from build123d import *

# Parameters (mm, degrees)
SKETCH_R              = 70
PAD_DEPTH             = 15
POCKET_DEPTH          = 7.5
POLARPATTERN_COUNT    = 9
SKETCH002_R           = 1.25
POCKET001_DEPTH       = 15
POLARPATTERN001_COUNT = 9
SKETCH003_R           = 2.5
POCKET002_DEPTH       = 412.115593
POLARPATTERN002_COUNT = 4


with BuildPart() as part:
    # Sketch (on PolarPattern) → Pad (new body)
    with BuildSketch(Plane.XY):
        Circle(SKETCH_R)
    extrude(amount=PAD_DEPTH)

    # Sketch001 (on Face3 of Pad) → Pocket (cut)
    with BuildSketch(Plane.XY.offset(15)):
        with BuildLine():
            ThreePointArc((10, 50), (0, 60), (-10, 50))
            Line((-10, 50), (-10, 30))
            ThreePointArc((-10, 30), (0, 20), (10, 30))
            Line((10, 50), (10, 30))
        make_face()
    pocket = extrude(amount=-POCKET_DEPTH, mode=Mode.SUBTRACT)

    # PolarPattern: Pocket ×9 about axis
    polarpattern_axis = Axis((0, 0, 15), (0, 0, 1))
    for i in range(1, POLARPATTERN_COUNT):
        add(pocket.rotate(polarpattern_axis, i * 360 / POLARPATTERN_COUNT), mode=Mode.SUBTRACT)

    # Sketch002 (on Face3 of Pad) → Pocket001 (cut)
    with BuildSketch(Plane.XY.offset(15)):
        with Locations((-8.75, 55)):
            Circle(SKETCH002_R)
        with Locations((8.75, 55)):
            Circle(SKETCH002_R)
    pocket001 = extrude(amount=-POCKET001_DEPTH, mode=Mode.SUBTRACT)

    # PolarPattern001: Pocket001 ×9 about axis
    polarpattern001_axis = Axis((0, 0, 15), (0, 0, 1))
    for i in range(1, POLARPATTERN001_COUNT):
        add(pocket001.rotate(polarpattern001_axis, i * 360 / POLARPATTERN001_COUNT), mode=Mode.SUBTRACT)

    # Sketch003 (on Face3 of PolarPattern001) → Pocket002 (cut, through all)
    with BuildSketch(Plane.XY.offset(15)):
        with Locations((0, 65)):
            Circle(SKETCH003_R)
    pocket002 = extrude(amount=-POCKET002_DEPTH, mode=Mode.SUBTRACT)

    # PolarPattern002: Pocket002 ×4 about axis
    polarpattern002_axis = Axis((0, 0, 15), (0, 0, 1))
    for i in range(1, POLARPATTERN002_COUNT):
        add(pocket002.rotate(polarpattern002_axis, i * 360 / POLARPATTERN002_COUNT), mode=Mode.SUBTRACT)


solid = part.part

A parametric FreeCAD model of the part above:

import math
import FreeCAD as App
import Part
import Sketcher
from FreeCAD import Vector
Q = App.Units.Quantity

doc = App.newDocument("Part")
body = doc.addObject("PartDesign::Body", "Body")

# Sketch on XY plane
sketch1 = body.newObject("Sketcher::SketchObject", "Sketch")
sketch1.AttachmentSupport = (doc.getObject("XY_Plane"), [""])
sketch1.MapMode = "FlatFace"
sketch1.addGeometry(Part.Circle(Vector(0, 0, 0), Vector(0, 0, 1), 70), False)
sketch1.addConstraint([
    Sketcher.Constraint("Coincident", 0, 3, -1, 1),
    Sketcher.Constraint("Diameter", 0, Q("140 mm")),
])
pad1 = body.newObject("PartDesign::Pad", "Pad")
pad1.Profile = sketch1
pad1.Length = 15

# Sketch on XY plane
sketch2 = body.newObject("Sketcher::SketchObject", "Sketch001")
sketch2.AttachmentSupport = (doc.getObject("XY_Plane"), [""])
sketch2.MapMode = "FlatFace"
sketch2.AttachmentOffset = App.Placement(Vector(0, 0, 15), App.Rotation())
sketch2.addGeometry([
    Part.ArcOfCircle(Part.Circle(Vector(0, 50, 0), Vector(0, 0, 1), 10), math.radians(0), math.radians(180)),
    Part.LineSegment(Vector(-10, 50, 0), Vector(-10, 30, 0)),
    Part.ArcOfCircle(Part.Circle(Vector(0, 30, 0), Vector(0, 0, 1), 10), math.radians(180), math.radians(360)),
    Part.LineSegment(Vector(10, 30, 0), Vector(10, 50, 0)),
], False)
sketch2.addConstraint([
    Sketcher.Constraint("Tangent", 0, 2, 1, 1),
    Sketcher.Constraint("Tangent", 1, 2, 2, 1),
    Sketcher.Constraint("Tangent", 2, 2, 3, 1),
    Sketcher.Constraint("Tangent", 3, 2, 0, 1),
    Sketcher.Constraint("Vertical", 1),
    Sketcher.Constraint("Vertical", 3),
    Sketcher.Constraint("PointOnObject", 0, 3, -2),
    Sketcher.Constraint("Radius", 0, Q("10 mm")),
    Sketcher.Constraint("DistanceY", 1, 2, 1, 1, Q("20 mm")),
    Sketcher.Constraint("DistanceY", -1, 1, 0, 3, Q("50 mm")),
])
pocket1 = body.newObject("PartDesign::Pocket", "Pocket")
pocket1.Profile = sketch2
pocket1.Length = 7.5
doc.recompute()

polarpattern = body.newObject("PartDesign::PolarPattern", "PolarPattern")
polarpattern.Originals = [pocket1]
polarpattern.Axis = (doc.getObject("Z_Axis"), [""])
polarpattern.Angle = 360
polarpattern.Occurrences = 9
body.Tip = polarpattern

# Sketch on XY plane
sketch3 = body.newObject("Sketcher::SketchObject", "Sketch002")
sketch3.AttachmentSupport = (doc.getObject("XY_Plane"), [""])
sketch3.MapMode = "FlatFace"
sketch3.AttachmentOffset = App.Placement(Vector(0, 0, 15), App.Rotation())
sketch3.addGeometry([
    Part.Circle(Vector(-8.8, 55, 0), Vector(0, 0, 1), 1.2),
    Part.Circle(Vector(8.8, 55, 0), Vector(0, 0, 1), 1.2),
], False)
sketch3.addConstraint([
    Sketcher.Constraint("Equal", 0, 1),
    Sketcher.Constraint("Symmetric", 0, 3, 1, 3, -2),
    Sketcher.Constraint("Diameter", 0, Q("2.5 mm")),
    Sketcher.Constraint("DistanceY", -1, 1, 0, 3, Q("55 mm")),
    Sketcher.Constraint("DistanceX", 0, 3, 1, 3, Q("17.5 mm")),
])
pocket2 = body.newObject("PartDesign::Pocket", "Pocket001")
pocket2.Profile = sketch3
pocket2.Length = 15
doc.recompute()

polarpattern2 = body.newObject("PartDesign::PolarPattern", "PolarPattern001")
polarpattern2.Originals = [pocket2]
polarpattern2.Axis = (doc.getObject("Z_Axis"), [""])
polarpattern2.Angle = 360
polarpattern2.Occurrences = 9
body.Tip = polarpattern2

# Sketch on XY plane
sketch4 = body.newObject("Sketcher::SketchObject", "Sketch003")
sketch4.AttachmentSupport = (doc.getObject("XY_Plane"), [""])
sketch4.MapMode = "FlatFace"
sketch4.AttachmentOffset = App.Placement(Vector(0, 0, 15), App.Rotation())
sketch4.addGeometry(Part.Circle(Vector(0, 65, 0), Vector(0, 0, 1), 2.5), False)
sketch4.addConstraint([
    Sketcher.Constraint("PointOnObject", 0, 3, -2),
    Sketcher.Constraint("Diameter", 0, Q("5 mm")),
    Sketcher.Constraint("DistanceY", -1, 1, 0, 3, Q("65 mm")),
])
pocket3 = body.newObject("PartDesign::Pocket", "Pocket002")
pocket3.Profile = sketch4
pocket3.Type = "ThroughAll"
doc.recompute()

polarpattern3 = body.newObject("PartDesign::PolarPattern", "PolarPattern002")
polarpattern3.Originals = [pocket3]
polarpattern3.Axis = (doc.getObject("Z_Axis"), [""])
polarpattern3.Angle = 360
polarpattern3.Occurrences = 4
body.Tip = polarpattern3

doc.recompute()
